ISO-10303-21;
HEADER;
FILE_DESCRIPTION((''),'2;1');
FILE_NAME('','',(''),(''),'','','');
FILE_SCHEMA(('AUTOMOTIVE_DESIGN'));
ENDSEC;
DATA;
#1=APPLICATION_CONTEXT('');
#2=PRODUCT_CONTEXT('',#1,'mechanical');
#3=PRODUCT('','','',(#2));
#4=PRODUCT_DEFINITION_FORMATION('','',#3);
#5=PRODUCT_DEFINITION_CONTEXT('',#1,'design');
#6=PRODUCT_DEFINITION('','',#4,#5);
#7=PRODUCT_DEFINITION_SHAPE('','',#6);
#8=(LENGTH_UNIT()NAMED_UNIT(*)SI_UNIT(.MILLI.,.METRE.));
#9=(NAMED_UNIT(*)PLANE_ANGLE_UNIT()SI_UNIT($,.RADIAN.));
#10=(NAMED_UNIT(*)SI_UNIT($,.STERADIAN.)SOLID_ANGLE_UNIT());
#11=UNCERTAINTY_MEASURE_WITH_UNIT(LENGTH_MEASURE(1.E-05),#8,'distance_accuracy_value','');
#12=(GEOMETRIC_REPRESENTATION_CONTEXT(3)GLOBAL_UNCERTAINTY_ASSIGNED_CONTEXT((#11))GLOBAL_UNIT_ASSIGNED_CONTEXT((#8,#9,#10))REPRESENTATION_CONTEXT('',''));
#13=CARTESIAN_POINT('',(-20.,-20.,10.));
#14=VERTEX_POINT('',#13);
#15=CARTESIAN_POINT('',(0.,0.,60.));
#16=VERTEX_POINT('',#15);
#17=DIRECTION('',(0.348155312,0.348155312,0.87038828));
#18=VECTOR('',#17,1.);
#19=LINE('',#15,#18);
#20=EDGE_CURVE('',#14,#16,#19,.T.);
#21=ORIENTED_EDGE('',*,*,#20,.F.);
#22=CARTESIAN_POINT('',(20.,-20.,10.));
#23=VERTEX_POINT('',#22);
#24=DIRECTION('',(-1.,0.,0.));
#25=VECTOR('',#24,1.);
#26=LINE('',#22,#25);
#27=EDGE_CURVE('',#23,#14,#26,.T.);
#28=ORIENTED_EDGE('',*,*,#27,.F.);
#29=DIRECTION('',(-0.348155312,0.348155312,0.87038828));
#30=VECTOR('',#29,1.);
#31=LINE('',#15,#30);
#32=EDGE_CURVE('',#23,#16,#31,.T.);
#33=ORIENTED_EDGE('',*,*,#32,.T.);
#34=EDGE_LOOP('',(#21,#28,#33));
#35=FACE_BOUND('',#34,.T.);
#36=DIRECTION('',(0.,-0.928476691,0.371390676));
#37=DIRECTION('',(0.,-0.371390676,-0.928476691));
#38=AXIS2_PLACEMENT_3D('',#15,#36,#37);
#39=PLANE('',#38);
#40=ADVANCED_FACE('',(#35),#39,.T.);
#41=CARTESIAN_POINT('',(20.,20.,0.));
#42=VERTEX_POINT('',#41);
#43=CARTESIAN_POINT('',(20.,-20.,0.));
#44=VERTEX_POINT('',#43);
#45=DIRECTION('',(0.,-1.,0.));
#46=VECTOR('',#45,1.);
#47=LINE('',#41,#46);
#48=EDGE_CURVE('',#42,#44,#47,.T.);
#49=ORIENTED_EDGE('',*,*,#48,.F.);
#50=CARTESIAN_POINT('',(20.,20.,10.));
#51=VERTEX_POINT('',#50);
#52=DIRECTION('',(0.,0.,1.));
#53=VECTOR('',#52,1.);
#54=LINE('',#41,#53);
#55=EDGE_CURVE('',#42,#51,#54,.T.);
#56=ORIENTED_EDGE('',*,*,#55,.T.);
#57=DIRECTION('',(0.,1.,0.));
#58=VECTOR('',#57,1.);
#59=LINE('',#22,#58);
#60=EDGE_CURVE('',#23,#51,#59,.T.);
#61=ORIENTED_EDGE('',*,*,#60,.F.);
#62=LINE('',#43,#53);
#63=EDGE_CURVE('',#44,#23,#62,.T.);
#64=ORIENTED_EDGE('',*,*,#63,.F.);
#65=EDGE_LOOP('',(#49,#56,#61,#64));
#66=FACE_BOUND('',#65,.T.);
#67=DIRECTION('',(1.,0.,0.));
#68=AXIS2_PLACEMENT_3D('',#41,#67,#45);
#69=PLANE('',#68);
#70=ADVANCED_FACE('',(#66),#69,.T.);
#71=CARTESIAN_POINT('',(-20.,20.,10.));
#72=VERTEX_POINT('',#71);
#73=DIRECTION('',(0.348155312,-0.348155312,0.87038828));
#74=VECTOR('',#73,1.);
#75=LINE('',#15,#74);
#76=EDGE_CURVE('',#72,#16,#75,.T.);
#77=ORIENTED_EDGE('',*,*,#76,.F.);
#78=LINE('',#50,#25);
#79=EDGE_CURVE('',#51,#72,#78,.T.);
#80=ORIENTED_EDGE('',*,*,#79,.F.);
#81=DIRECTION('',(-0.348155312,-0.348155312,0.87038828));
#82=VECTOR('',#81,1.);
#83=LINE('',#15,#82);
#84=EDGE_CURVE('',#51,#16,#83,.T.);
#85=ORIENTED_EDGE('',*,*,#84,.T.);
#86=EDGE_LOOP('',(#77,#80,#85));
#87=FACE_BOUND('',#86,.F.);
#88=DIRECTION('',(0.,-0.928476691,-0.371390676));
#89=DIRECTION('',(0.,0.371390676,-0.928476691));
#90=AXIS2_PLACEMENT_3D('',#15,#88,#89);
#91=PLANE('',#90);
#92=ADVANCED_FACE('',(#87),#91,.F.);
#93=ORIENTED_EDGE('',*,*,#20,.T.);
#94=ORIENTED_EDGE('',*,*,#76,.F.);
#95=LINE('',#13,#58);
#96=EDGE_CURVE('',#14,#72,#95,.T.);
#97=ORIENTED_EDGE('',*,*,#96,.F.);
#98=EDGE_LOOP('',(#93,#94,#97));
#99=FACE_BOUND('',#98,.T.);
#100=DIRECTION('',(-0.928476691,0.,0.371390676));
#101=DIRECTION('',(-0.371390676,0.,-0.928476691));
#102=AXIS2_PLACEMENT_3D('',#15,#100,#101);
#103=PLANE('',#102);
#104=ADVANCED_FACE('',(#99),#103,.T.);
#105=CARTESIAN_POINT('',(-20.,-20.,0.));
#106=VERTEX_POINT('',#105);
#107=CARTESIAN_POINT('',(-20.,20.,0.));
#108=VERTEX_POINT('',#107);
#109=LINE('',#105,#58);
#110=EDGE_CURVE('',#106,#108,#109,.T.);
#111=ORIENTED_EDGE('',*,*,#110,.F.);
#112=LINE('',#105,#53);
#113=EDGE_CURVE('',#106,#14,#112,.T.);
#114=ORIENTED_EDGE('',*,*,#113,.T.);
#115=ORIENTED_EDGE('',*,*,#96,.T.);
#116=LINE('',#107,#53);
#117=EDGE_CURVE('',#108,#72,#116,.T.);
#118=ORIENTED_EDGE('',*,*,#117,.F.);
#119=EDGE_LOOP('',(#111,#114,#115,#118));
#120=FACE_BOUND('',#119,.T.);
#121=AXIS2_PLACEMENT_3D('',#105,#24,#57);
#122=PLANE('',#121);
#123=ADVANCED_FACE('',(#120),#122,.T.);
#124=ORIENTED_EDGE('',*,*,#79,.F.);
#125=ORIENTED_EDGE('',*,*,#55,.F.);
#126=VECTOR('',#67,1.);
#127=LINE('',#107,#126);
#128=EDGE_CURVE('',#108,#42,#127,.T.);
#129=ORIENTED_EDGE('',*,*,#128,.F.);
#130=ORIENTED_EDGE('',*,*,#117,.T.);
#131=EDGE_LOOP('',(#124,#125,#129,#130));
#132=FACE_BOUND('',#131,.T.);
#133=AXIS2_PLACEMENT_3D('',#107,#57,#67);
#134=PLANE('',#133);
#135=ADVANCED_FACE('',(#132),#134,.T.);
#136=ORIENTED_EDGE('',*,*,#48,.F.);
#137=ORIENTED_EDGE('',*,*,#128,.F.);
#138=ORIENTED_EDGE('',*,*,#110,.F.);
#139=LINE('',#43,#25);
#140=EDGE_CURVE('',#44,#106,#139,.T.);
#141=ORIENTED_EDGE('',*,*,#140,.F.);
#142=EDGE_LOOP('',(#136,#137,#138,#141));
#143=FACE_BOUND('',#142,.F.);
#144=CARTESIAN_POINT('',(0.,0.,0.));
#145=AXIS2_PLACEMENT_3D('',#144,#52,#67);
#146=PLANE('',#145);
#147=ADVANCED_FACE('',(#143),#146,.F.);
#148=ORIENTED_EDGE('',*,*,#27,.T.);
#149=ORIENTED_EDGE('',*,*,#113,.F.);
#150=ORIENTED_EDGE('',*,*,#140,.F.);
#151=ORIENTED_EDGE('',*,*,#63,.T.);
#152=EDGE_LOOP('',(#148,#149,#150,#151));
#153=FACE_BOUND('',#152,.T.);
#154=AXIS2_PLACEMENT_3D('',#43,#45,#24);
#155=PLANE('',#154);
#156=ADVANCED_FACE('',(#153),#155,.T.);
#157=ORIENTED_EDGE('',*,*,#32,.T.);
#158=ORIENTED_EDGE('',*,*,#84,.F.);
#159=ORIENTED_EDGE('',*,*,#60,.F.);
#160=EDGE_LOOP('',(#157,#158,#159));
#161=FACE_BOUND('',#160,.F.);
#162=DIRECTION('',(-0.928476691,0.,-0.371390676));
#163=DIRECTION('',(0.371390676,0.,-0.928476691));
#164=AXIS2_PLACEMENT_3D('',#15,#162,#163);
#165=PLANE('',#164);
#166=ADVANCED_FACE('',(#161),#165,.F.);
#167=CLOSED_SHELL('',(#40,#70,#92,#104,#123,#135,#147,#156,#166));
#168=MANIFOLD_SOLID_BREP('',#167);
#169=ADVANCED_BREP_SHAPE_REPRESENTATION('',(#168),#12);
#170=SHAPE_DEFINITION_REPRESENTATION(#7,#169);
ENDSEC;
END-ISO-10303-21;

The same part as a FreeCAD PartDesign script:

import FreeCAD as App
import Part
import Sketcher


def add_polygon(sketch, points):
    """Adds a closed chain of lines whose ends are joined by coincident constraints."""
    first, n = sketch.GeometryCount, len(points)
    for a, b in zip(points, points[1:] + points[:1]):
        sketch.addGeometry(Part.LineSegment(App.Vector(*a, 0), App.Vector(*b, 0)), False)
    for i in range(n):
        sketch.addConstraint(Sketcher.Constraint("Coincident", first + i, 2, first + (i + 1) % n, 1))

doc = App.newDocument("Part")
body = doc.addObject("PartDesign::Body", "Body")

# Sketch on XY plane
sketch1 = body.newObject("Sketcher::SketchObject", "Sketch")
sketch1.AttachmentSupport = (doc.getObject("XY_Plane"), [""])
sketch1.MapMode = "FlatFace"
add_polygon(sketch1, [(20, 20), (-20, 20), (-20, -20), (20, -20)])  # lines 0-3
sketch1.addConstraint([
    Sketcher.Constraint("Horizontal", 0),
    Sketcher.Constraint("Vertical", 1),
    Sketcher.Constraint("Horizontal", 2),
    Sketcher.Constraint("Vertical", 3),
    Sketcher.Constraint("Symmetric", 0, 2, 2, 2, -1, 1),
    Sketcher.Constraint("Equal", 2, 1),
    Sketcher.Constraint("DistanceX", 0, 2, 0, 1, 40.0),
])
pad1 = body.newObject("PartDesign::Pad", "Pad")
pad1.Profile = sketch1
pad1.Length = 60

# Sketch on XZ plane
sketch2 = body.newObject("Sketcher::SketchObject", "Sketch001")
sketch2.AttachmentSupport = (doc.getObject("XZ_Plane"), [""])
sketch2.MapMode = "FlatFace"
add_polygon(sketch2, [(20, 60), (20, 10), (0, 60)])  # lines 0-2
add_polygon(sketch2, [(0, 60), (-20, 10), (-20, 60)])  # lines 3-5
sketch2.addConstraint([
    Sketcher.Constraint("Vertical", 0),
    Sketcher.Constraint("Horizontal", 2),
    Sketcher.Constraint("Vertical", 4),
    Sketcher.Constraint("Horizontal", 5),
    Sketcher.Constraint("Coincident", 5, 2, 1, 2),
    Sketcher.Constraint("Symmetric", 0, 2, 3, 2, -2),
    Sketcher.Constraint("PointOnObject", 1, 2, -2),
    Sketcher.Constraint("DistanceY", -1, 1, 0, 2, 10.0),
    Sketcher.Constraint("DistanceX", 2, 1, 2, 2, 20.0),
    Sketcher.Constraint("DistanceY", 0, 2, 0, 1, 50.0),
])
pocket1 = body.newObject("PartDesign::Pocket", "Pocket")
pocket1.Profile = sketch2
pocket1.Length = 40
pocket1.Midplane = True
doc.recompute()

polarpattern = body.newObject("PartDesign::PolarPattern", "PolarPattern")
polarpattern.Originals = [pocket1]
polarpattern.Axis = (doc.getObject("Z_Axis"), [""])
polarpattern.Angle = 90
polarpattern.Occurrences = 2
body.Tip = polarpattern

doc.recompute()
